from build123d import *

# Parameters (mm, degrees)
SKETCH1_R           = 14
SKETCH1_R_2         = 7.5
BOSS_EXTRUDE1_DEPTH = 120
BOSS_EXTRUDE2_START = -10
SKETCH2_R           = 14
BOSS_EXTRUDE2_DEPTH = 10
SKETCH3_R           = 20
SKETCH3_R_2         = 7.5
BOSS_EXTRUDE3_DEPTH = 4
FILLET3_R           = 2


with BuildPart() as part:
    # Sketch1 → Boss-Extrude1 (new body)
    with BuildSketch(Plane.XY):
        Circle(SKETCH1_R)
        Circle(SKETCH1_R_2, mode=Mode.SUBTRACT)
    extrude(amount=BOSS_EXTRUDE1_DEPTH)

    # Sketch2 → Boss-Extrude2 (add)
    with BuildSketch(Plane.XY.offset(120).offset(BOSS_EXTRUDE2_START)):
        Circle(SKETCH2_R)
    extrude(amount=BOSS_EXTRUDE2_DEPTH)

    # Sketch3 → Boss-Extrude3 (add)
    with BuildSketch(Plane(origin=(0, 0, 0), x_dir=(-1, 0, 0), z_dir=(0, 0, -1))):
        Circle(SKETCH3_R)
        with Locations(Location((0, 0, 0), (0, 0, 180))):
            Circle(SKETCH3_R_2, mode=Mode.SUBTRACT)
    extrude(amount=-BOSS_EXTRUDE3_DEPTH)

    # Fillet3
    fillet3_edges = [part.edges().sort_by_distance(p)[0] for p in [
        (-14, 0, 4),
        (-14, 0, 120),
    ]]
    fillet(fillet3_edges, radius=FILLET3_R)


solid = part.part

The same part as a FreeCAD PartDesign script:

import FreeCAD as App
import Part
import Sketcher
from FreeCAD import Vector
Q = App.Units.Quantity


def edges_at(feature, points):
    """Names of the edges that pass closest to the given points."""
    edges = feature.Shape.Edges
    near = lambda p: min(range(len(edges)), key=lambda i: edges[i].distToShape(Part.Vertex(*p))[0])
    return sorted({f"Edge{near(p) + 1}" for p in points})

doc = App.newDocument("Part")
params = doc.addObject("Spreadsheet::Sheet", "Params")
for row, (alias, value) in enumerate([
    ("sketch1_diameter", "28 mm"),
    ("sketch1_diameter2", "15 mm"),
    ("pad1_length", "120 mm"),
    ("sketch2_diameter", "28 mm"),
    ("pad2_length", "10 mm"),
    ("sketch3_diameter", "40 mm"),
    ("sketch3_diameter2", "15 mm"),
    ("pad3_length", "4 mm"),
    ("fillet_radius", "2 mm"),
], start=1):
    params.set(f"A{row}", alias)
    params.set(f"B{row}", "=" + value)
    params.setAlias(f"B{row}", alias)

body = doc.addObject("PartDesign::Body", "Body")

# Sketch on XY plane
sketch1 = body.newObject("Sketcher::SketchObject", "Sketch")
sketch1.AttachmentSupport = (doc.getObject("XY_Plane"), [""])
sketch1.MapMode = "FlatFace"
sketch1.addGeometry([
    Part.Circle(Vector(0, 0, 0), Vector(0, 0, 1), 14),
    Part.Circle(Vector(0, 0, 0), Vector(0, 0, 1), 8),
], False)
sketch1.addConstraint([
    Sketcher.Constraint("Coincident", 0, 3, -1, 1),
    Sketcher.Constraint("Coincident", 1, 3, -1, 1),
    Sketcher.Constraint("Diameter", 0, Q("28 mm")),
    Sketcher.Constraint("Diameter", 1, Q("15 mm")),
])
sketch1.setExpression("Constraints[2]", "Params.sketch1_diameter")
sketch1.setExpression("Constraints[3]", "Params.sketch1_diameter2")
pad1 = body.newObject("PartDesign::Pad", "Pad")
pad1.Profile = sketch1
pad1.setExpression("Length", "Params.pad1_length")

# Sketch on XY plane
sketch2 = body.newObject("Sketcher::SketchObject", "Sketch001")
sketch2.AttachmentSupport = (doc.getObject("XY_Plane"), [""])
sketch2.MapMode = "FlatFace"
sketch2.AttachmentOffset = App.Placement(Vector(0, 0, 110), App.Rotation())
sketch2.addGeometry(Part.Circle(Vector(0, 0, 0), Vector(0, 0, 1), 14), False)
sketch2.addConstraint([
    Sketcher.Constraint("Coincident", 0, 3, -1, 1),
    Sketcher.Constraint("Diameter", 0, Q("28 mm")),
])
sketch2.setExpression("Constraints[1]", "Params.sketch2_diameter")
pad2 = body.newObject("PartDesign::Pad", "Pad001")
pad2.Profile = sketch2
pad2.setExpression("Length", "Params.pad2_length")

# Sketch on XY plane
sketch3 = body.newObject("Sketcher::SketchObject", "Sketch002")
sketch3.AttachmentSupport = (doc.getObject("XY_Plane"), [""])
sketch3.MapMode = "FlatFace"
sketch3.addGeometry([
    Part.Circle(Vector(0, 0, 0), Vector(0, 0, 1), 20),
    Part.Circle(Vector(0, 0, 0), Vector(0, 0, 1), 8),
], False)
sketch3.addConstraint([
    Sketcher.Constraint("Coincident", 0, 3, -1, 1),
    Sketcher.Constraint("Coincident", 1, 3, -1, 1),
    Sketcher.Constraint("Diameter", 0, Q("40 mm")),
    Sketcher.Constraint("Diameter", 1, Q("15 mm")),
])
sketch3.setExpression("Constraints[2]", "Params.sketch3_diameter")
sketch3.setExpression("Constraints[3]", "Params.sketch3_diameter2")
pad3 = body.newObject("PartDesign::Pad", "Pad002")
pad3.Profile = sketch3
pad3.setExpression("Length", "Params.pad3_length")
doc.recompute()

fillet = body.newObject("PartDesign::Fillet", "Fillet")
fillet.Base = (pad3, edges_at(pad3, [(-14, 0, 4), (-14, 0, 120)]))
fillet.setExpression("Radius", "Params.fillet_radius")

doc.recompute()
